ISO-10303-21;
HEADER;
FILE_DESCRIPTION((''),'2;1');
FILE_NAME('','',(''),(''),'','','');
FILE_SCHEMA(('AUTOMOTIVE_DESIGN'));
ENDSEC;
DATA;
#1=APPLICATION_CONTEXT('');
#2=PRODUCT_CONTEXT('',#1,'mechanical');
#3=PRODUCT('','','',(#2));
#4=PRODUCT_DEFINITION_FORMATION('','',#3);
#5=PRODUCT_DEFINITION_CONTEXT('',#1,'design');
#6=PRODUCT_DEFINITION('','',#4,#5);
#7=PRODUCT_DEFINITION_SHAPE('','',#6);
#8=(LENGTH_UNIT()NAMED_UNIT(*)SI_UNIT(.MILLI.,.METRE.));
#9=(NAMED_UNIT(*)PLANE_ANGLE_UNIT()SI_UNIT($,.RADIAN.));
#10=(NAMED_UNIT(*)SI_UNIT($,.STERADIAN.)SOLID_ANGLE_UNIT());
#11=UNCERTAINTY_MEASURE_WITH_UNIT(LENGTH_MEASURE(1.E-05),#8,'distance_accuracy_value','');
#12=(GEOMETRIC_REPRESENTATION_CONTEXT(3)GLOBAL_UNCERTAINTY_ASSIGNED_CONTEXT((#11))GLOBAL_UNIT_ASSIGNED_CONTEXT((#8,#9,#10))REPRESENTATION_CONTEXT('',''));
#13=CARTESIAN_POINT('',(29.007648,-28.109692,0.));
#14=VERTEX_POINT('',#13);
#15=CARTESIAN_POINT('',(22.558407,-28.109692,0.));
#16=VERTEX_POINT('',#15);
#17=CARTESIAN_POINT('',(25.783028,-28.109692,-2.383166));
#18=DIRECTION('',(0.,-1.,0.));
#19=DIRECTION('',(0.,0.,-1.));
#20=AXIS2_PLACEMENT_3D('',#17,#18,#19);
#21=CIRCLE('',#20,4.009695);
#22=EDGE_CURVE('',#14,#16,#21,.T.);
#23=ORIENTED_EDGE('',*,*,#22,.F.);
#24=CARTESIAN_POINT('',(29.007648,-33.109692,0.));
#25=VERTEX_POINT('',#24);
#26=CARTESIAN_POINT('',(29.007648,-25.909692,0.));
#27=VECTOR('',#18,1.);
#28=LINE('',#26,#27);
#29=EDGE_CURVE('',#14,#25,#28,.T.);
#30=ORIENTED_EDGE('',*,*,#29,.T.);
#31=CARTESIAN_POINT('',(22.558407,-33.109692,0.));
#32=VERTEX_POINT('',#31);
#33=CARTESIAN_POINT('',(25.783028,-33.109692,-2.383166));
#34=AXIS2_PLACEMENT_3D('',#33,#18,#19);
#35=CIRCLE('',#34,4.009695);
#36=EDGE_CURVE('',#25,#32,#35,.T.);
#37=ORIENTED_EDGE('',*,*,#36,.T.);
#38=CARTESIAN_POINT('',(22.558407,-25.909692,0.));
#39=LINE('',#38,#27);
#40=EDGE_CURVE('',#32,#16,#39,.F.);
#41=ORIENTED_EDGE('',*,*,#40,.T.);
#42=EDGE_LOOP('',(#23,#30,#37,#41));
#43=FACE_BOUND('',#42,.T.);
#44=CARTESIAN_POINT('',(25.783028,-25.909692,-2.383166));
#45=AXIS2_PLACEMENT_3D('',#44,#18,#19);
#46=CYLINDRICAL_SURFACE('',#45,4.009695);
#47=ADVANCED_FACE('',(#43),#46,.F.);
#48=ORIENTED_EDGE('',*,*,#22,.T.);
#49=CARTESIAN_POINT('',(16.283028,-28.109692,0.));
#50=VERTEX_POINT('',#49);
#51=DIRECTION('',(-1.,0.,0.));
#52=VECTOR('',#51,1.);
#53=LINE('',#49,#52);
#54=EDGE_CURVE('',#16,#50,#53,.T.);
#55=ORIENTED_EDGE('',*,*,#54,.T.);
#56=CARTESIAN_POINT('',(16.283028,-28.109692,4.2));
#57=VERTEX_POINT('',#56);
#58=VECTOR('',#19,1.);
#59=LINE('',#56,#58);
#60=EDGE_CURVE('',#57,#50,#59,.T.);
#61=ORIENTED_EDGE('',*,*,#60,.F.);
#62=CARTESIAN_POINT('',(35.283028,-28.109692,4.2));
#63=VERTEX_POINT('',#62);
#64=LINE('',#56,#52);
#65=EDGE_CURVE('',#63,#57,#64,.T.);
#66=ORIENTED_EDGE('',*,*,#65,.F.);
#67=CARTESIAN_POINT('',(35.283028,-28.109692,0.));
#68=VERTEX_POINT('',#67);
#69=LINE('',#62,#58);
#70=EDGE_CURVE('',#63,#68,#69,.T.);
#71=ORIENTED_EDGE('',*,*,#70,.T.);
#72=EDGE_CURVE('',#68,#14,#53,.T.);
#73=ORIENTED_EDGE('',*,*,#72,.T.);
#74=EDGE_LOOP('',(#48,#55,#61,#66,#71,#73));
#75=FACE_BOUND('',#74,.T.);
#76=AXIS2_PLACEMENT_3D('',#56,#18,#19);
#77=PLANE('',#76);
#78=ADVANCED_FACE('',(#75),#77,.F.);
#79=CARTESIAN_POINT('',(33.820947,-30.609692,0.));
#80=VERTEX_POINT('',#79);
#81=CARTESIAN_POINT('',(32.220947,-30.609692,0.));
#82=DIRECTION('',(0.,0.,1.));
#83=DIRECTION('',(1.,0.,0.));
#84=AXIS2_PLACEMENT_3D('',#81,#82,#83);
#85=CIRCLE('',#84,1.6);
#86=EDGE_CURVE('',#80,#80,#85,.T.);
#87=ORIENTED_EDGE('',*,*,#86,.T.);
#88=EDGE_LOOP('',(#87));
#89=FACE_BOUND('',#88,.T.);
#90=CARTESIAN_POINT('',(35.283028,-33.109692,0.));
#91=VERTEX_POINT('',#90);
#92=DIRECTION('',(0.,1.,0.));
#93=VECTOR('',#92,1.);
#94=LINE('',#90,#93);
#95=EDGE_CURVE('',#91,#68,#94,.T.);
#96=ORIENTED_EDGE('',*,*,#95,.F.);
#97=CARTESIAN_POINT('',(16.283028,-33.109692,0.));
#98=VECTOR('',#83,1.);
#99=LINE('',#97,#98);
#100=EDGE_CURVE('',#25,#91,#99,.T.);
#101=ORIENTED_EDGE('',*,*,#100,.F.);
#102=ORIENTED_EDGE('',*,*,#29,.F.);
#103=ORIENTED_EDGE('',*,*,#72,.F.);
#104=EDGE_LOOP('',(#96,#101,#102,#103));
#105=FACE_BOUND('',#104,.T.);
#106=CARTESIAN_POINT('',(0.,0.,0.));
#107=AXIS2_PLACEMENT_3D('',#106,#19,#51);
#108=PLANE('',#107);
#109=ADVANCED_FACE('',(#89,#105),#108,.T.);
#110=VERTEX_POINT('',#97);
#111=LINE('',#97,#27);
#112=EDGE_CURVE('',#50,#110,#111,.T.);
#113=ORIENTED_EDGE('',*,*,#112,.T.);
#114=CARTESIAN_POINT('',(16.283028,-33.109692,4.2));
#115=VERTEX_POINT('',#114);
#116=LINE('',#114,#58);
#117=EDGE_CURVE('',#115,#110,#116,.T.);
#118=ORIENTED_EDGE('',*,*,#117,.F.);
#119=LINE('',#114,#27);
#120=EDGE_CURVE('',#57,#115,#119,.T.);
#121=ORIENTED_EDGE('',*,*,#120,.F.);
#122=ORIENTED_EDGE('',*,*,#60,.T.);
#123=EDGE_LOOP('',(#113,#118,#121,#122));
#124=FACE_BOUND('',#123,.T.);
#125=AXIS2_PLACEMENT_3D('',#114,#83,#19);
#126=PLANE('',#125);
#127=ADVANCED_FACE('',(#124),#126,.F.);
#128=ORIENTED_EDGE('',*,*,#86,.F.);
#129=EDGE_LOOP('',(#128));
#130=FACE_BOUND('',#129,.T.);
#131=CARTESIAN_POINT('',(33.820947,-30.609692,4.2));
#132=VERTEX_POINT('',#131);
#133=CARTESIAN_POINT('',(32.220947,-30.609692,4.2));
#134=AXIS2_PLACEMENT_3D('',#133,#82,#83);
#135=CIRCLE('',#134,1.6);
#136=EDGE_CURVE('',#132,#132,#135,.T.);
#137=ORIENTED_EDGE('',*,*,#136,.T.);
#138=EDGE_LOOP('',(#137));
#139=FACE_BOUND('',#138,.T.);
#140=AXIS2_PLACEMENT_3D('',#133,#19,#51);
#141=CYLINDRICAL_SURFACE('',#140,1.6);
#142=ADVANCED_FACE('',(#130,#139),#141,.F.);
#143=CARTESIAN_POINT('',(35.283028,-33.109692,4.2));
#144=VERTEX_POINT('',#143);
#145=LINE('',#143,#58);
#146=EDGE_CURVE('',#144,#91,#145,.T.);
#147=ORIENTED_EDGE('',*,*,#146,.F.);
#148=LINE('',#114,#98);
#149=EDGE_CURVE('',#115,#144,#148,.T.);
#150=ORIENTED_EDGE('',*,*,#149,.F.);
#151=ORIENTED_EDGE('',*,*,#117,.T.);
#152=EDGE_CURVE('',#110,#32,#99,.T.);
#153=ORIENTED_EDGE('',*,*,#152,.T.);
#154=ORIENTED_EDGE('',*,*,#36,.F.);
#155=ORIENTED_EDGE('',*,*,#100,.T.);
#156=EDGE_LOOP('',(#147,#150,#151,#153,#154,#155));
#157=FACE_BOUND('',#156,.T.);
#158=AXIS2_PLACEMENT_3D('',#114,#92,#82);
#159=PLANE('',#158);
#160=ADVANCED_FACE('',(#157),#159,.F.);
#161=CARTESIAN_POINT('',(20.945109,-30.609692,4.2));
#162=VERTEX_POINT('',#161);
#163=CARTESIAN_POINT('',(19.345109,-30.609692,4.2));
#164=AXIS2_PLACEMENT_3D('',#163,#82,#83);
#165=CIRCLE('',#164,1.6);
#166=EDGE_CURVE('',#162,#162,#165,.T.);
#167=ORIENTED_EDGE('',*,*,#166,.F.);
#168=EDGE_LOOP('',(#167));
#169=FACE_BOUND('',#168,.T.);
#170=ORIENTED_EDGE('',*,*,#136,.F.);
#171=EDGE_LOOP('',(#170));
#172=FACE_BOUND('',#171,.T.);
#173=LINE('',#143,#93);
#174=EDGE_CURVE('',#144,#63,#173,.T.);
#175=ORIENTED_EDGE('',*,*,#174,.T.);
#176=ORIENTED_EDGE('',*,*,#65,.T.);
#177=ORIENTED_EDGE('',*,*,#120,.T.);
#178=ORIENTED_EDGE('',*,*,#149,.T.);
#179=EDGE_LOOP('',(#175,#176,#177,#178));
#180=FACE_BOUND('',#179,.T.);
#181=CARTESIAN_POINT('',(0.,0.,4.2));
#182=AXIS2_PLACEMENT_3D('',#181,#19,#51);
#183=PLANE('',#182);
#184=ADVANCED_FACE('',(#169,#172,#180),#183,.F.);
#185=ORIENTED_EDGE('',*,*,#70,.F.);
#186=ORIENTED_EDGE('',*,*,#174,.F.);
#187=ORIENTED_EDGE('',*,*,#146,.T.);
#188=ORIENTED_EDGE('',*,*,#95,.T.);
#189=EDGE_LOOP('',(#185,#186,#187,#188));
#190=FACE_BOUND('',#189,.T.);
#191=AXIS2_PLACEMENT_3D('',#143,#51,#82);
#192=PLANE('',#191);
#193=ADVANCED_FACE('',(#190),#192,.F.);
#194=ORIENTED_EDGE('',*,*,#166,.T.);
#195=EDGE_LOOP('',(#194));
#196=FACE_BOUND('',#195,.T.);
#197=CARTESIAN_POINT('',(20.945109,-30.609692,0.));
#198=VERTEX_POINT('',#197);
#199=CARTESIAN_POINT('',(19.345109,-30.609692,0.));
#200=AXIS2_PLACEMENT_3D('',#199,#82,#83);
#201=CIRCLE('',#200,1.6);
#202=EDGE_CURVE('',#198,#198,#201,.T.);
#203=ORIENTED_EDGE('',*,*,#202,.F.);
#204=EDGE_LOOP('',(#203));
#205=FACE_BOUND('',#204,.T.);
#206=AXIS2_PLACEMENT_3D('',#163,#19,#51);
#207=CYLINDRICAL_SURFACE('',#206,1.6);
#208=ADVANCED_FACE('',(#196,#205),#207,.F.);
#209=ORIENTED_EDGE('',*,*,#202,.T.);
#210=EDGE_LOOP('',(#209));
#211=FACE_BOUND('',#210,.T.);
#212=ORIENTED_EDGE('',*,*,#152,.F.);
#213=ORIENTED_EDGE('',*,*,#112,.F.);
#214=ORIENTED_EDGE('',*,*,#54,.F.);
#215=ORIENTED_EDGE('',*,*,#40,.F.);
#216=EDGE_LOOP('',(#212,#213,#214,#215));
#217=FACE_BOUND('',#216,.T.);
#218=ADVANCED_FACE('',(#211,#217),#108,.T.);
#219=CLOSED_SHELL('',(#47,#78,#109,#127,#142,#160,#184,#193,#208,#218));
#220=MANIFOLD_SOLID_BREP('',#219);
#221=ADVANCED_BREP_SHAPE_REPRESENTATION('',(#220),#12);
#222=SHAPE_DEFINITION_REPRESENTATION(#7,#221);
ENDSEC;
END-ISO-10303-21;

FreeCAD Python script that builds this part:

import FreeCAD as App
import Part
import Sketcher
Q = App.Units.Quantity

doc = App.newDocument("Part")
params = doc.addObject("Spreadsheet::Sheet", "Params")
for row, (alias, value) in enumerate([
    ("sketch1_diameter", "3.2 mm"),
    ("sketch1_width", "19 mm"),
    ("sketch1_height", "5 mm"),
    ("pad1_length", "4.2 mm"),
    ("pocket1_length", "7.2 mm"),
], start=1):
    params.set(f"A{row}", alias)
    params.set(f"B{row}", "=" + value)
    params.setAlias(f"B{row}", alias)

body = doc.addObject("PartDesign::Body", "Body")

sketch1 = body.newObject("Sketcher::SketchObject", "Sketch")
sketch1.AttachmentSupport = (doc.getObject("XY_Plane"), [""])
sketch1.MapMode = "FlatFace"
sketch1.addGeometry(Part.LineSegment(App.Vector(16.3, -28.1, 0), App.Vector(16.3, -33.1, 0)), False)
sketch1.addGeometry(Part.LineSegment(App.Vector(16.3, -33.1, 0), App.Vector(35.3, -33.1, 0)), False)
sketch1.addGeometry(Part.LineSegment(App.Vector(35.3, -33.1, 0), App.Vector(35.3, -28.1, 0)), False)
sketch1.addGeometry(Part.LineSegment(App.Vector(35.3, -28.1, 0), App.Vector(16.3, -28.1, 0)), False)
sketch1.addGeometry(Part.Circle(App.Vector(19.3, -30.6, 0), App.Vector(0, 0, 1), 1.6), False)
sketch1.addGeometry(Part.Circle(App.Vector(32.2, -30.6, 0), App.Vector(0, 0, 1), 1.6), False)
sketch1.addConstraint(Sketcher.Constraint("Coincident", 0, 2, 1, 1))
sketch1.addConstraint(Sketcher.Constraint("Coincident", 1, 2, 2, 1))
sketch1.addConstraint(Sketcher.Constraint("Coincident", 2, 2, 3, 1))
sketch1.addConstraint(Sketcher.Constraint("Coincident", 3, 2, 0, 1))
sketch1.addConstraint(Sketcher.Constraint("Vertical", 0))
sketch1.addConstraint(Sketcher.Constraint("Horizontal", 1))
sketch1.addConstraint(Sketcher.Constraint("Vertical", 2))
sketch1.addConstraint(Sketcher.Constraint("Horizontal", 3))
sketch1.addConstraint(Sketcher.Constraint("Equal", 4, 5))
sketch1.addConstraint(Sketcher.Constraint("Horizontal", 4, 3, 5, 3))
sketch1.addConstraint(Sketcher.Constraint("Diameter", 4, Q("3.2 mm")))
sketch1.addConstraint(Sketcher.Constraint("DistanceX", 1, 1, 1, 2, Q("19 mm")))
sketch1.addConstraint(Sketcher.Constraint("DistanceY", 0, 2, 0, 1, Q("5 mm")))
sketch1.addConstraint(Sketcher.Constraint("DistanceY", 0, 2, 4, 3, Q("2.5 mm")))
sketch1.addConstraint(Sketcher.Constraint("DistanceX", -1, 1, 4, 3, Q("19.345109 mm")))
sketch1.addConstraint(Sketcher.Constraint("DistanceX", 0, 2, 4, 3, Q("3.062081 mm")))
sketch1.addConstraint(Sketcher.Constraint("DistanceX", 0, 2, 5, 3, Q("15.937919 mm")))
sketch1.addConstraint(Sketcher.Constraint("DistanceY", 4, 3, -1, 1, Q("30.609692 mm")))
sketch1.setExpression("Constraints[10]", "Params.sketch1_diameter")
sketch1.setExpression("Constraints[11]", "Params.sketch1_width")
sketch1.setExpression("Constraints[12]", "Params.sketch1_height")
pad1 = body.newObject("PartDesign::Pad", "Pad")
pad1.Profile = sketch1
pad1.setExpression("Length", "Params.pad1_length")

sketch2 = body.newObject("Sketcher::SketchObject", "Sketch001")
sketch2.AttachmentSupport = (doc.getObject("XZ_Plane"), [""])
sketch2.MapMode = "FlatFace"
sketch2.AttachmentOffset = App.Placement(App.Vector(0, 0, 33.109692), App.Rotation())
sketch2.addGeometry(Part.Circle(App.Vector(25.8, -2.4, 0), App.Vector(0, 0, 1), 4), False)
sketch2.addConstraint(Sketcher.Constraint("Diameter", 0, Q("8.01939 mm")))
sketch2.addConstraint(Sketcher.Constraint("DistanceX", -1, 1, 0, 3, Q("25.783028 mm")))
sketch2.addConstraint(Sketcher.Constraint("DistanceY", 0, 3, -1, 1, Q("2.383166 mm")))
pocket1 = body.newObject("PartDesign::Pocket", "Pocket")
pocket1.Profile = sketch2
pocket1.setExpression("Length", "Params.pocket1_length")

doc.recompute()
